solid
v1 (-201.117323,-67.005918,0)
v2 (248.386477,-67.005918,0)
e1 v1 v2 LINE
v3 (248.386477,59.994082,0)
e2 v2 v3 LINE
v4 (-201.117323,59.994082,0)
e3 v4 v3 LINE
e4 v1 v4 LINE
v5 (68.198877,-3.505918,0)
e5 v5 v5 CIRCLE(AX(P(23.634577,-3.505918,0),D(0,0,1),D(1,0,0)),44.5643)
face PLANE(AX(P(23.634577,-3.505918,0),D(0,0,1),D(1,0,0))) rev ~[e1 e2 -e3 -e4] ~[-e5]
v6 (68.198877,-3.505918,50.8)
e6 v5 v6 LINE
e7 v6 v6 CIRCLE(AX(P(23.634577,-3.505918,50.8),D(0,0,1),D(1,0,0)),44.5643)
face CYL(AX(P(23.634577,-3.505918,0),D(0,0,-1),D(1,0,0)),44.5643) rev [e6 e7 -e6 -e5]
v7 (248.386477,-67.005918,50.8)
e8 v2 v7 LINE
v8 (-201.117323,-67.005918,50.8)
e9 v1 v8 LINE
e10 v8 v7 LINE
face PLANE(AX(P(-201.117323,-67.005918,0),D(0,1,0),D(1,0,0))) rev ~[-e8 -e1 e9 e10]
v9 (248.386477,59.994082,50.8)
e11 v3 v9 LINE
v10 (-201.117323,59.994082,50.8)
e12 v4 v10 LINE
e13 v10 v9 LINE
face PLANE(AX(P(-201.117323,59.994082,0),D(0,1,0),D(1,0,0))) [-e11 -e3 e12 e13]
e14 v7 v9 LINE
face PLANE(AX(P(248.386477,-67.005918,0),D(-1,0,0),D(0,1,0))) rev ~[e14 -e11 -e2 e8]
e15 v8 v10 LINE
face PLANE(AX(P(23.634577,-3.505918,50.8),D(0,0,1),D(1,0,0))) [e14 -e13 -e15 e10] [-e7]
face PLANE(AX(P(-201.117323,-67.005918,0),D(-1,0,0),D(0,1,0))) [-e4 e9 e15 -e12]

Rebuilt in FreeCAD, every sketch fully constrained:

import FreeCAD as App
import Part
import Sketcher
from FreeCAD import Vector
Q = App.Units.Quantity

doc = App.newDocument("Part")
body = doc.addObject("PartDesign::Body", "Body")

sketch1 = body.newObject("Sketcher::SketchObject", "Sketch")
sketch1.AttachmentSupport = (doc.getObject("XY_Plane"), [""])
sketch1.MapMode = "FlatFace"
sketch1.addGeometry([
    Part.LineSegment(Vector(-201.117323, 59.994082, 0), Vector(-201.117323, -67.005918, 0)),
    Part.LineSegment(Vector(-201.117323, -67.005918, 0), Vector(248.386477, -67.005918, 0)),
    Part.LineSegment(Vector(248.386477, -67.005918, 0), Vector(248.386477, 59.994082, 0)),
    Part.LineSegment(Vector(248.386477, 59.994082, 0), Vector(-201.117323, 59.994082, 0)),
    Part.Circle(Vector(23.634577, -3.505918, 0), Vector(0, 0, 1), 44.5643),
], False)
sketch1.addConstraint([
    Sketcher.Constraint("Coincident", 0, 2, 1, 1),
    Sketcher.Constraint("Coincident", 1, 2, 2, 1),
    Sketcher.Constraint("Coincident", 2, 2, 3, 1),
    Sketcher.Constraint("Coincident", 3, 2, 0, 1),
    Sketcher.Constraint("Vertical", 0),
    Sketcher.Constraint("Horizontal", 1),
    Sketcher.Constraint("Vertical", 2),
    Sketcher.Constraint("Horizontal", 3),
    Sketcher.Constraint("DistanceY", 0, 2, 0, 1, Q("5 in")),
    Sketcher.Constraint("Diameter", 4, Q("3.509 in")),
    Sketcher.Constraint("DistanceY", 0, 2, 4, 3, Q("2.5 in")),
    Sketcher.Constraint("DistanceX", 1, 1, 1, 2, Q("17.697 in")),
    Sketcher.Constraint("DistanceX", 0, 2, 4, 3, Q("8.8485 in")),
    Sketcher.Constraint("DistanceX", -1, 1, 4, 3, 23.634577),
    Sketcher.Constraint("DistanceY", 4, 3, -1, 1, 3.505918),
])
pad1 = body.newObject("PartDesign::Pad", "Pad")
pad1.Profile = sketch1
pad1.Length = Q("2 in")

sketch2 = body.newObject("Sketcher::SketchObject", "Sketch001")
sketch2.AttachmentSupport = (doc.getObject("XY_Plane"), [""])
sketch2.MapMode = "FlatFace"
sketch2.addGeometry([
    Part.LineSegment(Vector(-201.117323, 59.994082, 0), Vector(-201.117323, -67.005918, 0)),
    Part.LineSegment(Vector(-201.117323, -67.005918, 0), Vector(248.386477, -67.005918, 0)),
    Part.LineSegment(Vector(248.386477, -67.005918, 0), Vector(248.386477, 59.994082, 0)),
    Part.LineSegment(Vector(248.386477, 59.994082, 0), Vector(-201.117323, 59.994082, 0)),
    Part.Circle(Vector(23.634577, -3.505918, 0), Vector(0, 0, 1), 44.5643),
], False)
sketch2.addConstraint([
    Sketcher.Constraint("Coincident", 0, 2, 1, 1),
    Sketcher.Constraint("Coincident", 1, 2, 2, 1),
    Sketcher.Constraint("Coincident", 2, 2, 3, 1),
    Sketcher.Constraint("Coincident", 3, 2, 0, 1),
    Sketcher.Constraint("Vertical", 0),
    Sketcher.Constraint("Horizontal", 1),
    Sketcher.Constraint("Vertical", 2),
    Sketcher.Constraint("Horizontal", 3),
    Sketcher.Constraint("DistanceY", 0, 2, 0, 1, Q("5 in")),
    Sketcher.Constraint("Diameter", 4, Q("3.509 in")),
    Sketcher.Constraint("DistanceY", 0, 2, 4, 3, Q("2.5 in")),
    Sketcher.Constraint("DistanceX", 1, 1, 1, 2, Q("17.697 in")),
    Sketcher.Constraint("DistanceX", 0, 2, 4, 3, Q("8.8485 in")),
    Sketcher.Constraint("DistanceX", -1, 1, 4, 3, 23.634577),
    Sketcher.Constraint("DistanceY", 4, 3, -1, 1, 3.505918),
])
pad2 = body.newObject("PartDesign::Pad", "Pad001")
pad2.Profile = sketch2
pad2.Length = Q("2 in")

doc.recompute()
